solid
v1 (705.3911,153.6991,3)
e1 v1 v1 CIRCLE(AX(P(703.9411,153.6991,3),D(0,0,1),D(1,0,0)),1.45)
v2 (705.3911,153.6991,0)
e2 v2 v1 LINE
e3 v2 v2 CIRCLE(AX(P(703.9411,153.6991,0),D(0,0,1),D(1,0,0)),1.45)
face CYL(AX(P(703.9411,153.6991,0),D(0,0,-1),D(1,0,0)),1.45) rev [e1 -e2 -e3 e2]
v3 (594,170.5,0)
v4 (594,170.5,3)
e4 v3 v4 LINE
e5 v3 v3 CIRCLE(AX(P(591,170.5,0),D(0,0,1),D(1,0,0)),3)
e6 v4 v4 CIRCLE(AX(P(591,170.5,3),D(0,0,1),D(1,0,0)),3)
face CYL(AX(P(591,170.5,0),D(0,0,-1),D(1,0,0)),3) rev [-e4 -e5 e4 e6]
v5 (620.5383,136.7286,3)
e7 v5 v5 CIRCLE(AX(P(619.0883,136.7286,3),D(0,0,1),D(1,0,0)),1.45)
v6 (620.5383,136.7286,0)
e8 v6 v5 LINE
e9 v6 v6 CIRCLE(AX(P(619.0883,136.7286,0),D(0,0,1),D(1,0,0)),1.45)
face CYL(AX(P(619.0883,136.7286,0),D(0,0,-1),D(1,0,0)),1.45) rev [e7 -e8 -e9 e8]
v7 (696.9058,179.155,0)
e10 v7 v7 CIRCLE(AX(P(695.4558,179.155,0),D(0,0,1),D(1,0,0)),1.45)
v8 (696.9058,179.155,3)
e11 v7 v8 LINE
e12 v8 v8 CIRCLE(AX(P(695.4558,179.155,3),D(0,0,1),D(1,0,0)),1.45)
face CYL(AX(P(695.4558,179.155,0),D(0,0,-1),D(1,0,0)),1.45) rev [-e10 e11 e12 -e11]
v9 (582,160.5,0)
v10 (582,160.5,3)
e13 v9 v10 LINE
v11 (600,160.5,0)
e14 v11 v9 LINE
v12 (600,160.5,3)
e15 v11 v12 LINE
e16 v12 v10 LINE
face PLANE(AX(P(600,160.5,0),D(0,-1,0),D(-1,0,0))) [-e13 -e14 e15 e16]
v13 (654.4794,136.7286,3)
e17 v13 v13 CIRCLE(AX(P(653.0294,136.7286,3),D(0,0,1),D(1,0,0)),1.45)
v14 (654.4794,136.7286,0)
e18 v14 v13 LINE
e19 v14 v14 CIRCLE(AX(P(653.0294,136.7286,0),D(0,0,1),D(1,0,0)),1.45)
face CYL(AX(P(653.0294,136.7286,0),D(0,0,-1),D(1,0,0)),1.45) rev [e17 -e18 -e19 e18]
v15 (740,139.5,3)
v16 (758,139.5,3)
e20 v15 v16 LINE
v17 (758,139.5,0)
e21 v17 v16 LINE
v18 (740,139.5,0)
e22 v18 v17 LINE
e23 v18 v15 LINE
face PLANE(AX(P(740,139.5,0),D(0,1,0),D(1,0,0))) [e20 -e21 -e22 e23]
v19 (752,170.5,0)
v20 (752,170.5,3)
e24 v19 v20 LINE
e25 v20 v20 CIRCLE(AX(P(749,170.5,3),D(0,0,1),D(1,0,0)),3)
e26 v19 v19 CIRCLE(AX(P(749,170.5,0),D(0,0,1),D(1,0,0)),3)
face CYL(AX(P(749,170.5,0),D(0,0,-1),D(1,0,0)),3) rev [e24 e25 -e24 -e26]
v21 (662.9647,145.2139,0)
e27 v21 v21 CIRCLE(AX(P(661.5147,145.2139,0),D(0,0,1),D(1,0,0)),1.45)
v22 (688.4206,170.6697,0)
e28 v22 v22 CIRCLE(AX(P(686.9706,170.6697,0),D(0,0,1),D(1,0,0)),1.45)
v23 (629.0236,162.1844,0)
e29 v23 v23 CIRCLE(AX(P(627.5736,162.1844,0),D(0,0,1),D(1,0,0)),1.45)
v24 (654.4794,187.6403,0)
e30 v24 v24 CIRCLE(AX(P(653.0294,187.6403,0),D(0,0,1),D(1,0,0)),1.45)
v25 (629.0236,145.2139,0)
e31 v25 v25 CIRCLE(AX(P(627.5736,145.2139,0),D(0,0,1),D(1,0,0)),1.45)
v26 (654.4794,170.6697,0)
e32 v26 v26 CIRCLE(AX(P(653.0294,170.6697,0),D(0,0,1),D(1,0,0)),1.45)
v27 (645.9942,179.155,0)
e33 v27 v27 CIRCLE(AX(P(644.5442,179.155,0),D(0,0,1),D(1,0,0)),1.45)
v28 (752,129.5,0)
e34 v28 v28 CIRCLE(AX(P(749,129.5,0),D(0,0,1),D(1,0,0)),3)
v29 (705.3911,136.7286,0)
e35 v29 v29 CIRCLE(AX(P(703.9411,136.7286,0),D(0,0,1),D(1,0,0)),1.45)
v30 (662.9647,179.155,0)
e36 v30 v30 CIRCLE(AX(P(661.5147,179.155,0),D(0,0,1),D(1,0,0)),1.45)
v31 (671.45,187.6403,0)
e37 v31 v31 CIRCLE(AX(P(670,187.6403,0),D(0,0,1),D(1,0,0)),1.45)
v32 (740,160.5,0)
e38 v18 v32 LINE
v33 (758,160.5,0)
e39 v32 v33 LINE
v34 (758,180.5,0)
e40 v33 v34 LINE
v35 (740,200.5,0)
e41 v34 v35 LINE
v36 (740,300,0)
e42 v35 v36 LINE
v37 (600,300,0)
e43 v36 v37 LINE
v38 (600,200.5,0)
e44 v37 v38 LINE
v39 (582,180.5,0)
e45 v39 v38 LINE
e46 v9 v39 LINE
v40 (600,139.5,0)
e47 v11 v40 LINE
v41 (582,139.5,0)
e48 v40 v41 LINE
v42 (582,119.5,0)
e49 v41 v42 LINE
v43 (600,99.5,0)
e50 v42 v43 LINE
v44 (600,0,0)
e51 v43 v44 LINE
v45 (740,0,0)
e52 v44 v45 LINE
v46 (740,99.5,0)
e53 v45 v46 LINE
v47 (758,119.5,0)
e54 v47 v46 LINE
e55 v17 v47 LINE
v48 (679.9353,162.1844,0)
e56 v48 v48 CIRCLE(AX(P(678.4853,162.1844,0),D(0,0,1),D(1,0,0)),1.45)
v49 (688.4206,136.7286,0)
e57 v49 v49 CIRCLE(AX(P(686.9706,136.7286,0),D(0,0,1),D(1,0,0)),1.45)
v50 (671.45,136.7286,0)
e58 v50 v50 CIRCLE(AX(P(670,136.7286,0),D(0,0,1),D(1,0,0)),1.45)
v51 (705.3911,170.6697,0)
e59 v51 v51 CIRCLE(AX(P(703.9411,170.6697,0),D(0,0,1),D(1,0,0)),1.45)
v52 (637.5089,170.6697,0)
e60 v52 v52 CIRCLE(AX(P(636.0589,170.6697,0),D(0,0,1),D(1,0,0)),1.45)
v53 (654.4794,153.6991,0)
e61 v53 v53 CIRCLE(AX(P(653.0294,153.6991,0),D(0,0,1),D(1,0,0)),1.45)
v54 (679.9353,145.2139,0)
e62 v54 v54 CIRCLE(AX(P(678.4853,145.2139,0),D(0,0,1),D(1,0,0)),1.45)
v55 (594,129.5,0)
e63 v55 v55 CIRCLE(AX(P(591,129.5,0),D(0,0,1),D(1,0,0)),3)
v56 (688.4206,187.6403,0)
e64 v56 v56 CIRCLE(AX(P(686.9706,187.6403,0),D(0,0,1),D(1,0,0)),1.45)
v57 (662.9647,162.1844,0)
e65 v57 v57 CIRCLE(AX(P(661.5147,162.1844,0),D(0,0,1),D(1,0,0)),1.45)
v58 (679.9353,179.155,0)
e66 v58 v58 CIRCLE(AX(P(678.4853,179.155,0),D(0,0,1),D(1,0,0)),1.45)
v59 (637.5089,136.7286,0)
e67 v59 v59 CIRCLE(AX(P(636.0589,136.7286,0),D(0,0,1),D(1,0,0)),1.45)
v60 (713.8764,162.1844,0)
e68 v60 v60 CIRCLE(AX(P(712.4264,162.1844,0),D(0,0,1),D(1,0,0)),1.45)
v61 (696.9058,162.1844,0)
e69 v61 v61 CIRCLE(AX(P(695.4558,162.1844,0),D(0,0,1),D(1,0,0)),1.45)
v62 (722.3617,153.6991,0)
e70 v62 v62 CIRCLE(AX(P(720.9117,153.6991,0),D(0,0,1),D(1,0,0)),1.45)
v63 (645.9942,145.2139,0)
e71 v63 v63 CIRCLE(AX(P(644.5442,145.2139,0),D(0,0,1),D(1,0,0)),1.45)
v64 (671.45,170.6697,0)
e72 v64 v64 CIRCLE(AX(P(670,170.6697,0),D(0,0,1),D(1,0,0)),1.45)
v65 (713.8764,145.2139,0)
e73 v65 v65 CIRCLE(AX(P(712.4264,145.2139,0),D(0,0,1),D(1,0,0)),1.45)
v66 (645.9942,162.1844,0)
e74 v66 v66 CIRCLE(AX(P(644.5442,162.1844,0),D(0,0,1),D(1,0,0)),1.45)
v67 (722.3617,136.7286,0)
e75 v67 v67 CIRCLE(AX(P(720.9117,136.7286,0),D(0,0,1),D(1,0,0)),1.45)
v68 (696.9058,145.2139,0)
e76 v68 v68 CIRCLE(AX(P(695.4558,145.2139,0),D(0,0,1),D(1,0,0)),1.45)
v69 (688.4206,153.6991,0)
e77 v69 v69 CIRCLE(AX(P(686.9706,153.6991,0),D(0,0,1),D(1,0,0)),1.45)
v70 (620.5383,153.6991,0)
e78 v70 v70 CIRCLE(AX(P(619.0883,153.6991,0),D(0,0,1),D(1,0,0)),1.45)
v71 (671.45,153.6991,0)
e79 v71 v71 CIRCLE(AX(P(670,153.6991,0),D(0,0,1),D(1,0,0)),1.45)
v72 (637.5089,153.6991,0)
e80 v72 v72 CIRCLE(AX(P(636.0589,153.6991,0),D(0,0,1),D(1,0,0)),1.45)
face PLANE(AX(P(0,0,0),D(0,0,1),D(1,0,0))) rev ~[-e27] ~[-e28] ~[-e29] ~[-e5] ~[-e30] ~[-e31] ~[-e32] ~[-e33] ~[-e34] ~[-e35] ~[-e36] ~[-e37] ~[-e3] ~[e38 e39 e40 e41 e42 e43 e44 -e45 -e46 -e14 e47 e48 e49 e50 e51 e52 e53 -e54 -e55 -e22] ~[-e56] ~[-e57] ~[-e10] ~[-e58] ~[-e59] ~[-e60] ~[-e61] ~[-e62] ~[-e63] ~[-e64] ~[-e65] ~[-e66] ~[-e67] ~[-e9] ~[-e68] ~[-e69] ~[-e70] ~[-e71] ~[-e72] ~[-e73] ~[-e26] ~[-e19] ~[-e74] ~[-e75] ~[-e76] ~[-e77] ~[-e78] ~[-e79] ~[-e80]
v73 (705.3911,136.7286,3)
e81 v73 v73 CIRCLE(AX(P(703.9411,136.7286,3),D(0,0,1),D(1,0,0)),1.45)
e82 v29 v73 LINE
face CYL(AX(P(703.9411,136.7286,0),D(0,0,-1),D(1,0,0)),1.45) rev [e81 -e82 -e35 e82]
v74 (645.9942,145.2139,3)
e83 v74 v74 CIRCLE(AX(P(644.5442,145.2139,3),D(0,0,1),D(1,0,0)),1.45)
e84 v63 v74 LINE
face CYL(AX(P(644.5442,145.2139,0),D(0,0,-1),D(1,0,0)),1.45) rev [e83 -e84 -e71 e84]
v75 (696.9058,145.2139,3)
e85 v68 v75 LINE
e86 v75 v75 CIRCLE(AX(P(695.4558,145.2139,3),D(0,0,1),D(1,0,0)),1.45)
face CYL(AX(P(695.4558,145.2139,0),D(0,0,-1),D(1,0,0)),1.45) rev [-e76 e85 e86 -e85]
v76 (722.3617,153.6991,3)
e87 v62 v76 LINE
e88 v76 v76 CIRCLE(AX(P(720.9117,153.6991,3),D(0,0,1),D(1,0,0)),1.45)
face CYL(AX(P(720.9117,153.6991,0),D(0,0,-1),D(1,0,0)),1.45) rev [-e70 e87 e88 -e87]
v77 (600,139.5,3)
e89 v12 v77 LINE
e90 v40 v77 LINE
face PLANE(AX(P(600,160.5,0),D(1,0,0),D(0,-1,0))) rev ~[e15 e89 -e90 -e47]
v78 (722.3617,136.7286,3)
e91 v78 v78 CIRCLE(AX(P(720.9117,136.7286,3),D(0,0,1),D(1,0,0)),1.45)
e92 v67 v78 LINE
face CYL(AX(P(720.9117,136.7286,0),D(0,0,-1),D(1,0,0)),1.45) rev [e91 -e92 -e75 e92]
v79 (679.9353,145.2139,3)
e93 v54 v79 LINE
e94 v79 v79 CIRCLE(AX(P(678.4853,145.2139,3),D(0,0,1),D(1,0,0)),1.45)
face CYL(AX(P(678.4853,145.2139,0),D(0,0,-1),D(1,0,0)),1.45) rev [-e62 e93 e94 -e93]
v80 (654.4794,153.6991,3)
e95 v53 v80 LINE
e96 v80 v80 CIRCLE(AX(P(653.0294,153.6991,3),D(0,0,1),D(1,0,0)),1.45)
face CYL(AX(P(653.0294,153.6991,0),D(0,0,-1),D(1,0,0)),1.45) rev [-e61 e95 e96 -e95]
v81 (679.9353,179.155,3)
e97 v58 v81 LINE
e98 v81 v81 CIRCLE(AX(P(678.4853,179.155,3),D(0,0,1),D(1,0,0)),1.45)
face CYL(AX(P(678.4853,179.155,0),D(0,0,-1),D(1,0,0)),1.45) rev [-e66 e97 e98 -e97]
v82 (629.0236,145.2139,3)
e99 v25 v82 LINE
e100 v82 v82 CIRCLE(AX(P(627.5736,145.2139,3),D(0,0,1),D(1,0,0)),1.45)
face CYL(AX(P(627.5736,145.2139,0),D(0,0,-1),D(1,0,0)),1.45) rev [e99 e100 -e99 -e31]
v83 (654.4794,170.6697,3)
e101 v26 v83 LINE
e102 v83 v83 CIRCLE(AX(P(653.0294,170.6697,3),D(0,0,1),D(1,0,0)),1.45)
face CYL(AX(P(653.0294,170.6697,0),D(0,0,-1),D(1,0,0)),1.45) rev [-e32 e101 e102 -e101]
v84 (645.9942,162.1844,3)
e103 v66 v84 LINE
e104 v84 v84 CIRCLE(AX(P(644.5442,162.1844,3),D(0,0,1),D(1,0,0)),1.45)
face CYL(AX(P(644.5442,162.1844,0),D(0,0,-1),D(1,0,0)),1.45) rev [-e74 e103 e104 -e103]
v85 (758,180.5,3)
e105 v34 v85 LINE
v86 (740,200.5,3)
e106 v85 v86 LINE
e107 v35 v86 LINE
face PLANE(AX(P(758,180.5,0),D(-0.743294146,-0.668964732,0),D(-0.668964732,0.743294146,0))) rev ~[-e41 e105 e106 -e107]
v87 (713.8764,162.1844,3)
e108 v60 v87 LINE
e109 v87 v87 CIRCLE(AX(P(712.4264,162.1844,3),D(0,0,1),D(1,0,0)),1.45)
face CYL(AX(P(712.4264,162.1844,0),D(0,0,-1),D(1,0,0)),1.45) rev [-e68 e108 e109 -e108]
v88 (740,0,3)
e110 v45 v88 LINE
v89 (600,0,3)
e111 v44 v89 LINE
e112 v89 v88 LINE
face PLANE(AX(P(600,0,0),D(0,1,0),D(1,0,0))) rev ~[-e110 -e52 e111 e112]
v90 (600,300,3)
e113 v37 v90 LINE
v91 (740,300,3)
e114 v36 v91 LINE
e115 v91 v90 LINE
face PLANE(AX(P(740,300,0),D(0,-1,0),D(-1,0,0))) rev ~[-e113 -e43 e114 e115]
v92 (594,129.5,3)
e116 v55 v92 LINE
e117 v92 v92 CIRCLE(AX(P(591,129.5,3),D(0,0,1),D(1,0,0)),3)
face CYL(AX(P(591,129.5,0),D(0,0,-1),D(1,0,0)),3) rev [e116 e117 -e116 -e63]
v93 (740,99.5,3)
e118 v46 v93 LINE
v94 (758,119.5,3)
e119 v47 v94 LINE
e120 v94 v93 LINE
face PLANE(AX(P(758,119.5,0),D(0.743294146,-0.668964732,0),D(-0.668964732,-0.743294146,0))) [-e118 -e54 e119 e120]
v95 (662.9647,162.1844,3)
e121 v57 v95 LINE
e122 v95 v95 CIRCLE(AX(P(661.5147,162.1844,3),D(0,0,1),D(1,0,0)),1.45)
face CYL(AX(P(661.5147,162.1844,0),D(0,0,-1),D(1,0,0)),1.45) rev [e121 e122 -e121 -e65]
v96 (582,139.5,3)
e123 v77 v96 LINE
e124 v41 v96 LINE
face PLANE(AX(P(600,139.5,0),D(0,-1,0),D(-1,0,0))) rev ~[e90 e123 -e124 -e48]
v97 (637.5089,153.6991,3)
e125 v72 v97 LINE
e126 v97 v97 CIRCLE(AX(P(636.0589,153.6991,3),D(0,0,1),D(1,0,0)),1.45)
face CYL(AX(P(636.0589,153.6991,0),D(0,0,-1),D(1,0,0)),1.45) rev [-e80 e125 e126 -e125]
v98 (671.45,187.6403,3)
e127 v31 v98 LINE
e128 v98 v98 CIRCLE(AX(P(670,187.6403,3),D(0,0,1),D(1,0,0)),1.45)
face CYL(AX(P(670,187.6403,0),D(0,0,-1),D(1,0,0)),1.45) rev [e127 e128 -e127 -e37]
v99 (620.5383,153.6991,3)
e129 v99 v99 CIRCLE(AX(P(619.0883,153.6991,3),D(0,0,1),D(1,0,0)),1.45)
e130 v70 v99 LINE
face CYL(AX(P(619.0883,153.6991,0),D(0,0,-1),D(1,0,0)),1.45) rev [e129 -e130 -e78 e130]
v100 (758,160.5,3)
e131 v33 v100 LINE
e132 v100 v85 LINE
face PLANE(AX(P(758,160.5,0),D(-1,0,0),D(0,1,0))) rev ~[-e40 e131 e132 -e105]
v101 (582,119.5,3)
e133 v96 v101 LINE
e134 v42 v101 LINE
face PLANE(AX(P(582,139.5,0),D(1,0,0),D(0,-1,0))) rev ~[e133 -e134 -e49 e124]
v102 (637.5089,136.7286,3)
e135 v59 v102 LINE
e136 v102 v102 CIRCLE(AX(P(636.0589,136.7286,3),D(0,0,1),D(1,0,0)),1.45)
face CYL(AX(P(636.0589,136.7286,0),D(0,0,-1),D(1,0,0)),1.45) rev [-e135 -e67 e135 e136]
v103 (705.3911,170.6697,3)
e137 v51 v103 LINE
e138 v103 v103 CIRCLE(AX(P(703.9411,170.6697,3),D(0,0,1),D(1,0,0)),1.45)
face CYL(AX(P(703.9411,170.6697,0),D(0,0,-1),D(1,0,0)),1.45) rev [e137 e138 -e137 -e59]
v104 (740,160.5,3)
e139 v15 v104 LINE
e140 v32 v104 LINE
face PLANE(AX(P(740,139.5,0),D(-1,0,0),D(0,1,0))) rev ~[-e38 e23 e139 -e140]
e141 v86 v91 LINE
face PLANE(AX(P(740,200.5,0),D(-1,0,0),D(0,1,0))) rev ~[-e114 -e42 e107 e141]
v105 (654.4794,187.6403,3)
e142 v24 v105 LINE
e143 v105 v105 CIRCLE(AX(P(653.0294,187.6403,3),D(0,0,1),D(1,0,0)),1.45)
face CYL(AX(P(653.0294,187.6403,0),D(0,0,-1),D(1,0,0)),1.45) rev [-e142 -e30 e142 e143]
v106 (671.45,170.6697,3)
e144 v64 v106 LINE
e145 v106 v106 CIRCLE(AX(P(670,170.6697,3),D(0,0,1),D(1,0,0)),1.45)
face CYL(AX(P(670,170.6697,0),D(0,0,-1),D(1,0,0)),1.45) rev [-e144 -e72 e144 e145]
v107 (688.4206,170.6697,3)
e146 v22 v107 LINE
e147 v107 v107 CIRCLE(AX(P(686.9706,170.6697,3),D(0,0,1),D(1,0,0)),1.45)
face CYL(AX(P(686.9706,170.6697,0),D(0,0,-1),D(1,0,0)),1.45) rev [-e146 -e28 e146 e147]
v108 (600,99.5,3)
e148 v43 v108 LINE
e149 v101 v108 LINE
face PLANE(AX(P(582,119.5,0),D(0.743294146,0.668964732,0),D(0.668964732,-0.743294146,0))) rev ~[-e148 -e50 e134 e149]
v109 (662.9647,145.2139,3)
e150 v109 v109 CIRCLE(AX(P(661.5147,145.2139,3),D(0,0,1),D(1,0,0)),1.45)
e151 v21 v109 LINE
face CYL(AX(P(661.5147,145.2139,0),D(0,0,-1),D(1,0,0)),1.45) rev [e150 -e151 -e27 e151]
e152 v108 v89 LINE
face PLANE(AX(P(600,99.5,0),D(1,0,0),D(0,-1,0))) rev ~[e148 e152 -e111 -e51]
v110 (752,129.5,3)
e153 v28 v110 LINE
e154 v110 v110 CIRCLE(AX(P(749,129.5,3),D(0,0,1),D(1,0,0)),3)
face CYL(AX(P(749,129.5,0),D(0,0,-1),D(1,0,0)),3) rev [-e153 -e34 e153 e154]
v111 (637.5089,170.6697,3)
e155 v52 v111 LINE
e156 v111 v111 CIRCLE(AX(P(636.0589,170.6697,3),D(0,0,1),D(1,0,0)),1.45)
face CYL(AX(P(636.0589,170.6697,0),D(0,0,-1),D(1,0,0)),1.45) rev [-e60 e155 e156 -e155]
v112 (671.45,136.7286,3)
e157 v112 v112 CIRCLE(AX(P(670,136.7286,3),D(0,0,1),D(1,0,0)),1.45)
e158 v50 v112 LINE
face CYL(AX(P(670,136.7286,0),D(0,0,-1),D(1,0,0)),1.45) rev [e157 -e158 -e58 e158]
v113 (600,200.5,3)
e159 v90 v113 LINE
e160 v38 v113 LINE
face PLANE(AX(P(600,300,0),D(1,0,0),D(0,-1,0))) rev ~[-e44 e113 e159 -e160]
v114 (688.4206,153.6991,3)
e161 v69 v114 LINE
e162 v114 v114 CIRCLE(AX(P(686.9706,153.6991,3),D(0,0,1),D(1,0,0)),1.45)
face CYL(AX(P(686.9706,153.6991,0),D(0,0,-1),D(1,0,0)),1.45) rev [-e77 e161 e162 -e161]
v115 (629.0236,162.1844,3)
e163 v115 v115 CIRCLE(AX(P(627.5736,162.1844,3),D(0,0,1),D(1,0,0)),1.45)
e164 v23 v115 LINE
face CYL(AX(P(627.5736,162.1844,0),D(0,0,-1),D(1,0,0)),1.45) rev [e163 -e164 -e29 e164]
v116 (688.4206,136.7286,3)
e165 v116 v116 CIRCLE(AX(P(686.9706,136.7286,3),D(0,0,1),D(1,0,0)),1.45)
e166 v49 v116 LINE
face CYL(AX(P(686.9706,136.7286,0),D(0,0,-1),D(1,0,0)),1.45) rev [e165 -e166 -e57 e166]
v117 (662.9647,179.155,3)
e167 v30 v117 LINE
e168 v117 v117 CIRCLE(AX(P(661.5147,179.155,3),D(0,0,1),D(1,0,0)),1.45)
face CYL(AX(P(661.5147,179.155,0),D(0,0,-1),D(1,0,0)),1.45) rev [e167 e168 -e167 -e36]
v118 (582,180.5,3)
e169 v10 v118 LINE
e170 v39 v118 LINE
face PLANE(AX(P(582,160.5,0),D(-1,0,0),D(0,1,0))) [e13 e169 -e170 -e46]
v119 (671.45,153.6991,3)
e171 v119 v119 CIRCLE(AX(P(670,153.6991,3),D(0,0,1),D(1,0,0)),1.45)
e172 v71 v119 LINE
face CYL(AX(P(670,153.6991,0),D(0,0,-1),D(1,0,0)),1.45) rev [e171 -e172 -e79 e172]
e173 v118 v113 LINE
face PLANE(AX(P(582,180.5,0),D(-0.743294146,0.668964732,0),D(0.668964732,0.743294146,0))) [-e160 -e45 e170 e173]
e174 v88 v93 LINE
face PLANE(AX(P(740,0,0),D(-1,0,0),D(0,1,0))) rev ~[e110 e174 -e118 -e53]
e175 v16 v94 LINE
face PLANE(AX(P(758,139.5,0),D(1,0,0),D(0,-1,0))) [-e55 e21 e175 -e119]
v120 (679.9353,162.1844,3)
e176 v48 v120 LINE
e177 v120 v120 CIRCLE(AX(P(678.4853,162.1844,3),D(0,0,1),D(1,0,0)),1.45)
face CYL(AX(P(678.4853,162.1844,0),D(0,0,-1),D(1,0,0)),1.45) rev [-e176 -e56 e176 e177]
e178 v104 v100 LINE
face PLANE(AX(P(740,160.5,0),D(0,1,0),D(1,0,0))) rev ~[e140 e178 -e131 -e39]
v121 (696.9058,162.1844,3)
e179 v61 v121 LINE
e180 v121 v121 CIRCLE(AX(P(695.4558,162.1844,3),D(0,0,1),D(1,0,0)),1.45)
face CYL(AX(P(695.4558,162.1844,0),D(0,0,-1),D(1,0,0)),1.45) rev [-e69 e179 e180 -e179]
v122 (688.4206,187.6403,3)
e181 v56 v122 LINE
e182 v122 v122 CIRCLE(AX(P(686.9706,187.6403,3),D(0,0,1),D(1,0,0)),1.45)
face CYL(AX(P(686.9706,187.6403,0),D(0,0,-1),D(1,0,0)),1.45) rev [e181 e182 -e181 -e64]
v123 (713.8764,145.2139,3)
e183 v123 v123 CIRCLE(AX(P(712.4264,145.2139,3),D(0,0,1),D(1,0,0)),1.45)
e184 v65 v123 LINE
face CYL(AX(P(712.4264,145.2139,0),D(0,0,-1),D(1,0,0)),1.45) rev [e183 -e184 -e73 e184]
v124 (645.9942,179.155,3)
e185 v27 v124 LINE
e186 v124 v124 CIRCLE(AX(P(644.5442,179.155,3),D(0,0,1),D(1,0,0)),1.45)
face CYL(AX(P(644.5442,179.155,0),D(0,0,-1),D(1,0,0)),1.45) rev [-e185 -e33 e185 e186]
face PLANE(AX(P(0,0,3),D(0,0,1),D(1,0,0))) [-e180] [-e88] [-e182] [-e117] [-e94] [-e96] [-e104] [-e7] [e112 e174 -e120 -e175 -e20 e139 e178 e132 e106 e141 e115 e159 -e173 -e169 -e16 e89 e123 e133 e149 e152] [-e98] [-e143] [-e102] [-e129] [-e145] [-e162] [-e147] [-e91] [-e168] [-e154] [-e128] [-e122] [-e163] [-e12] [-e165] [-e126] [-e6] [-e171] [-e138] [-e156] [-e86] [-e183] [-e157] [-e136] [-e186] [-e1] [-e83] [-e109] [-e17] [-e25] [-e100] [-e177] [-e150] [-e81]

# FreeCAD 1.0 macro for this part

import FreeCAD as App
import Part
import Sketcher
from FreeCAD import Vector


def add_polygon(sketch, points):
    """Adds a closed chain of lines whose ends are joined by coincident constraints."""
    first, n = sketch.GeometryCount, len(points)
    for a, b in zip(points, points[1:] + points[:1]):
        sketch.addGeometry(Part.LineSegment(App.Vector(*a, 0), App.Vector(*b, 0)), False)
    for i in range(n):
        sketch.addConstraint(Sketcher.Constraint("Coincident", first + i, 2, first + (i + 1) % n, 1))

doc = App.newDocument("Part")
body = doc.addObject("PartDesign::Body", "Body")

# Sketch on XY plane
sketch1 = body.newObject("Sketcher::SketchObject", "Sketch")
sketch1.AttachmentSupport = (doc.getObject("XY_Plane"), [""])
sketch1.MapMode = "FlatFace"
add_polygon(sketch1, [(740, 200.5), (740, 300), (600, 300), (600, 200.5), (582, 180.5), (582, 160.5), (600, 160.5), (600, 139.5), (582, 139.5), (582, 119.5), (600, 99.5), (600, 0), (740, 0), (740, 99.5), (758, 119.5), (758, 139.5), (740, 139.5), (740, 160.5), (758, 160.5), (758, 180.5)])  # lines 0-19
sketch1.addGeometry(Part.Circle(Vector(619.1, 136.7, 0), Vector(0, 0, 1), 1.4), False)  # 20
sketch1.addGeometry(Part.Circle(Vector(627.6, 145.2, 0), Vector(0, 0, 1), 1.4), False)  # 21
sketch1.addGeometry(Part.Circle(Vector(636.1, 136.7, 0), Vector(0, 0, 1), 1.4), False)  # 22
sketch1.addGeometry(Part.Circle(Vector(653, 136.7, 0), Vector(0, 0, 1), 1.4), False)  # 23
sketch1.addGeometry(Part.Circle(Vector(644.5, 145.2, 0), Vector(0, 0, 1), 1.4), False)  # 24
sketch1.addGeometry(Part.Circle(Vector(661.5, 145.2, 0), Vector(0, 0, 1), 1.4), False)  # 25
sketch1.addGeometry(Part.Circle(Vector(670, 136.7, 0), Vector(0, 0, 1), 1.4), False)  # 26
sketch1.addGeometry(Part.Circle(Vector(687, 136.7, 0), Vector(0, 0, 1), 1.4), False)  # 27
sketch1.addGeometry(Part.Circle(Vector(678.5, 145.2, 0), Vector(0, 0, 1), 1.4), False)  # 28
sketch1.addGeometry(Part.Circle(Vector(695.5, 145.2, 0), Vector(0, 0, 1), 1.4), False)  # 29
sketch1.addGeometry(Part.Circle(Vector(703.9, 136.7, 0), Vector(0, 0, 1), 1.4), False)  # 30
sketch1.addGeometry(Part.Circle(Vector(720.9, 136.7, 0), Vector(0, 0, 1), 1.4), False)  # 31
sketch1.addGeometry(Part.Circle(Vector(712.4, 145.2, 0), Vector(0, 0, 1), 1.4), False)  # 32
sketch1.addGeometry(Part.Circle(Vector(619.1, 153.7, 0), Vector(0, 0, 1), 1.4), False)  # 33
sketch1.addGeometry(Part.Circle(Vector(636.1, 153.7, 0), Vector(0, 0, 1), 1.4), False)  # 34
sketch1.addGeometry(Part.Circle(Vector(653, 153.7, 0), Vector(0, 0, 1), 1.4), False)  # 35
sketch1.addGeometry(Part.Circle(Vector(627.6, 162.2, 0), Vector(0, 0, 1), 1.4), False)  # 36
sketch1.addGeometry(Part.Circle(Vector(644.5, 162.2, 0), Vector(0, 0, 1), 1.4), False)  # 37
sketch1.addGeometry(Part.Circle(Vector(661.5, 162.2, 0), Vector(0, 0, 1), 1.4), False)  # 38
sketch1.addGeometry(Part.Circle(Vector(636.1, 170.7, 0), Vector(0, 0, 1), 1.4), False)  # 39
sketch1.addGeometry(Part.Circle(Vector(653, 170.7, 0), Vector(0, 0, 1), 1.4), False)  # 40
sketch1.addGeometry(Part.Circle(Vector(670, 153.7, 0), Vector(0, 0, 1), 1.4), False)  # 41
sketch1.addGeometry(Part.Circle(Vector(687, 153.7, 0), Vector(0, 0, 1), 1.4), False)  # 42
sketch1.addGeometry(Part.Circle(Vector(703.9, 153.7, 0), Vector(0, 0, 1), 1.4), False)  # 43
sketch1.addGeometry(Part.Circle(Vector(720.9, 153.7, 0), Vector(0, 0, 1), 1.4), False)  # 44
sketch1.addGeometry(Part.Circle(Vector(678.5, 162.2, 0), Vector(0, 0, 1), 1.4), False)  # 45
sketch1.addGeometry(Part.Circle(Vector(695.5, 162.2, 0), Vector(0, 0, 1), 1.4), False)  # 46
sketch1.addGeometry(Part.Circle(Vector(670, 170.7, 0), Vector(0, 0, 1), 1.4), False)  # 47
sketch1.addGeometry(Part.Circle(Vector(687, 170.7, 0), Vector(0, 0, 1), 1.4), False)  # 48
sketch1.addGeometry(Part.Circle(Vector(712.4, 162.2, 0), Vector(0, 0, 1), 1.4), False)  # 49
sketch1.addGeometry(Part.Circle(Vector(703.9, 170.7, 0), Vector(0, 0, 1), 1.4), False)  # 50
sketch1.addGeometry(Part.Circle(Vector(644.5, 179.2, 0), Vector(0, 0, 1), 1.4), False)  # 51
sketch1.addGeometry(Part.Circle(Vector(661.5, 179.2, 0), Vector(0, 0, 1), 1.4), False)  # 52
sketch1.addGeometry(Part.Circle(Vector(653, 187.6, 0), Vector(0, 0, 1), 1.4), False)  # 53
sketch1.addGeometry(Part.Circle(Vector(678.5, 179.2, 0), Vector(0, 0, 1), 1.4), False)  # 54
sketch1.addGeometry(Part.Circle(Vector(695.5, 179.2, 0), Vector(0, 0, 1), 1.4), False)  # 55
sketch1.addGeometry(Part.Circle(Vector(670, 187.6, 0), Vector(0, 0, 1), 1.4), False)  # 56
sketch1.addGeometry(Part.Circle(Vector(687, 187.6, 0), Vector(0, 0, 1), 1.4), False)  # 57
sketch1.addGeometry(Part.Circle(Vector(749, 170.5, 0), Vector(0, 0, 1), 3), False)  # 58
sketch1.addGeometry(Part.Circle(Vector(749, 129.5, 0), Vector(0, 0, 1), 3), False)  # 59
sketch1.addGeometry(Part.Circle(Vector(591, 129.5, 0), Vector(0, 0, 1), 3), False)  # 60
sketch1.addGeometry(Part.Circle(Vector(591, 170.5, 0), Vector(0, 0, 1), 3), False)  # 61
sketch1.addConstraint(Sketcher.Constraint("Vertical", 0))
sketch1.addConstraint(Sketcher.Constraint("Horizontal", 1))
sketch1.addConstraint(Sketcher.Constraint("Vertical", 2))
sketch1.addConstraint(Sketcher.Constraint("Vertical", 4))
sketch1.addConstraint(Sketcher.Constraint("Horizontal", 5))
sketch1.addConstraint(Sketcher.Constraint("Vertical", 6))
sketch1.addConstraint(Sketcher.Constraint("Horizontal", 7))
sketch1.addConstraint(Sketcher.Constraint("Vertical", 8))
sketch1.addConstraint(Sketcher.Constraint("Vertical", 10))
sketch1.addConstraint(Sketcher.Constraint("Horizontal", 11))
sketch1.addConstraint(Sketcher.Constraint("Vertical", 12))
sketch1.addConstraint(Sketcher.Constraint("Vertical", 14))
sketch1.addConstraint(Sketcher.Constraint("Horizontal", 15))
sketch1.addConstraint(Sketcher.Constraint("Vertical", 16))
sketch1.addConstraint(Sketcher.Constraint("Horizontal", 17))
sketch1.addConstraint(Sketcher.Constraint("Vertical", 18))
sketch1.addConstraint(Sketcher.Constraint("Equal", 20, 21))
sketch1.addConstraint(Sketcher.Constraint("Equal", 21, 22))
sketch1.addConstraint(Sketcher.Constraint("Equal", 22, 23))
sketch1.addConstraint(Sketcher.Constraint("Equal", 23, 24))
sketch1.addConstraint(Sketcher.Constraint("Equal", 24, 25))
sketch1.addConstraint(Sketcher.Constraint("Equal", 25, 26))
sketch1.addConstraint(Sketcher.Constraint("Equal", 26, 27))
sketch1.addConstraint(Sketcher.Constraint("Equal", 27, 28))
sketch1.addConstraint(Sketcher.Constraint("Equal", 28, 29))
sketch1.addConstraint(Sketcher.Constraint("Equal", 29, 30))
sketch1.addConstraint(Sketcher.Constraint("Equal", 30, 31))
sketch1.addConstraint(Sketcher.Constraint("Equal", 31, 32))
sketch1.addConstraint(Sketcher.Constraint("Equal", 32, 33))
sketch1.addConstraint(Sketcher.Constraint("Equal", 33, 34))
sketch1.addConstraint(Sketcher.Constraint("Equal", 34, 35))
sketch1.addConstraint(Sketcher.Constraint("Equal", 35, 36))
sketch1.addConstraint(Sketcher.Constraint("Equal", 36, 37))
sketch1.addConstraint(Sketcher.Constraint("Equal", 37, 38))
sketch1.addConstraint(Sketcher.Constraint("Equal", 38, 39))
sketch1.addConstraint(Sketcher.Constraint("Equal", 39, 40))
sketch1.addConstraint(Sketcher.Constraint("Equal", 40, 41))
sketch1.addConstraint(Sketcher.Constraint("Equal", 41, 42))
sketch1.addConstraint(Sketcher.Constraint("Equal", 42, 43))
sketch1.addConstraint(Sketcher.Constraint("Equal", 43, 44))
sketch1.addConstraint(Sketcher.Constraint("Equal", 44, 45))
sketch1.addConstraint(Sketcher.Constraint("Equal", 45, 46))
sketch1.addConstraint(Sketcher.Constraint("Equal", 46, 47))
sketch1.addConstraint(Sketcher.Constraint("Equal", 47, 48))
sketch1.addConstraint(Sketcher.Constraint("Equal", 48, 49))
sketch1.addConstraint(Sketcher.Constraint("Equal", 49, 50))
sketch1.addConstraint(Sketcher.Constraint("Equal", 50, 51))
sketch1.addConstraint(Sketcher.Constraint("Equal", 51, 52))
sketch1.addConstraint(Sketcher.Constraint("Equal", 52, 53))
sketch1.addConstraint(Sketcher.Constraint("Equal", 53, 54))
sketch1.addConstraint(Sketcher.Constraint("Equal", 54, 55))
sketch1.addConstraint(Sketcher.Constraint("Equal", 55, 56))
sketch1.addConstraint(Sketcher.Constraint("Equal", 56, 57))
sketch1.addConstraint(Sketcher.Constraint("Equal", 58, 59))
sketch1.addConstraint(Sketcher.Constraint("Equal", 59, 60))
sketch1.addConstraint(Sketcher.Constraint("Equal", 60, 61))
sketch1.addConstraint(Sketcher.Constraint("PointOnObject", 10, 2, -1))
sketch1.addConstraint(Sketcher.Constraint("Parallel", 3, 13))
sketch1.addConstraint(Sketcher.Constraint("Parallel", 9, 19))
sketch1.addConstraint(Sketcher.Constraint("Horizontal", 20, 3, 22, 3))
sketch1.addConstraint(Sketcher.Constraint("Horizontal", 22, 3, 23, 3))
sketch1.addConstraint(Sketcher.Constraint("Horizontal", 21, 3, 24, 3))
sketch1.addConstraint(Sketcher.Constraint("Horizontal", 24, 3, 25, 3))
sketch1.addConstraint(Sketcher.Constraint("Horizontal", 23, 3, 26, 3))
sketch1.addConstraint(Sketcher.Constraint("Horizontal", 26, 3, 27, 3))
sketch1.addConstraint(Sketcher.Constraint("Horizontal", 25, 3, 28, 3))
sketch1.addConstraint(Sketcher.Constraint("Horizontal", 28, 3, 29, 3))
sketch1.addConstraint(Sketcher.Constraint("Horizontal", 27, 3, 30, 3))
sketch1.addConstraint(Sketcher.Constraint("Horizontal", 30, 3, 31, 3))
sketch1.addConstraint(Sketcher.Constraint("Horizontal", 29, 3, 32, 3))
sketch1.addConstraint(Sketcher.Constraint("Horizontal", 33, 3, 34, 3))
sketch1.addConstraint(Sketcher.Constraint("Horizontal", 34, 3, 35, 3))
sketch1.addConstraint(Sketcher.Constraint("Horizontal", 36, 3, 37, 3))
sketch1.addConstraint(Sketcher.Constraint("Horizontal", 37, 3, 38, 3))
sketch1.addConstraint(Sketcher.Constraint("Horizontal", 39, 3, 40, 3))
sketch1.addConstraint(Sketcher.Constraint("Horizontal", 35, 3, 41, 3))
sketch1.addConstraint(Sketcher.Constraint("Horizontal", 41, 3, 42, 3))
sketch1.addConstraint(Sketcher.Constraint("Horizontal", 42, 3, 43, 3))
sketch1.addConstraint(Sketcher.Constraint("Horizontal", 43, 3, 44, 3))
sketch1.addConstraint(Sketcher.Constraint("Horizontal", 38, 3, 45, 3))
sketch1.addConstraint(Sketcher.Constraint("Horizontal", 45, 3, 46, 3))
sketch1.addConstraint(Sketcher.Constraint("Horizontal", 40, 3, 47, 3))
sketch1.addConstraint(Sketcher.Constraint("Horizontal", 47, 3, 48, 3))
sketch1.addConstraint(Sketcher.Constraint("Horizontal", 46, 3, 49, 3))
sketch1.addConstraint(Sketcher.Constraint("Horizontal", 48, 3, 50, 3))
sketch1.addConstraint(Sketcher.Constraint("Horizontal", 51, 3, 52, 3))
sketch1.addConstraint(Sketcher.Constraint("Horizontal", 52, 3, 54, 3))
sketch1.addConstraint(Sketcher.Constraint("Horizontal", 54, 3, 55, 3))
sketch1.addConstraint(Sketcher.Constraint("Horizontal", 53, 3, 56, 3))
sketch1.addConstraint(Sketcher.Constraint("Horizontal", 56, 3, 57, 3))
sketch1.addConstraint(Sketcher.Constraint("Horizontal", 59, 3, 60, 3))
sketch1.addConstraint(Sketcher.Constraint("Horizontal", 58, 3, 61, 3))
sketch1.addConstraint(Sketcher.Constraint("Horizontal", 9, 2, 12, 2))
sketch1.addConstraint(Sketcher.Constraint("Horizontal", 8, 2, 13, 2))
sketch1.addConstraint(Sketcher.Constraint("Horizontal", 7, 2, 14, 2))
sketch1.addConstraint(Sketcher.Constraint("Horizontal", 5, 2, 16, 2))
sketch1.addConstraint(Sketcher.Constraint("Horizontal", 3, 2, 18, 2))
sketch1.addConstraint(Sketcher.Constraint("Horizontal", 2, 2, 19, 2))
sketch1.addConstraint(Sketcher.Constraint("Vertical", 20, 3, 33, 3))
sketch1.addConstraint(Sketcher.Constraint("Vertical", 22, 3, 34, 3))
sketch1.addConstraint(Sketcher.Constraint("Vertical", 23, 3, 35, 3))
sketch1.addConstraint(Sketcher.Constraint("Vertical", 21, 3, 36, 3))
sketch1.addConstraint(Sketcher.Constraint("Vertical", 24, 3, 37, 3))
sketch1.addConstraint(Sketcher.Constraint("Vertical", 25, 3, 38, 3))
sketch1.addConstraint(Sketcher.Constraint("Vertical", 34, 3, 39, 3))
sketch1.addConstraint(Sketcher.Constraint("Vertical", 35, 3, 40, 3))
sketch1.addConstraint(Sketcher.Constraint("Vertical", 26, 3, 41, 3))
sketch1.addConstraint(Sketcher.Constraint("Vertical", 27, 3, 42, 3))
sketch1.addConstraint(Sketcher.Constraint("Vertical", 30, 3, 43, 3))
sketch1.addConstraint(Sketcher.Constraint("Vertical", 31, 3, 44, 3))
sketch1.addConstraint(Sketcher.Constraint("Vertical", 28, 3, 45, 3))
sketch1.addConstraint(Sketcher.Constraint("Vertical", 29, 3, 46, 3))
sketch1.addConstraint(Sketcher.Constraint("Vertical", 41, 3, 47, 3))
sketch1.addConstraint(Sketcher.Constraint("Vertical", 42, 3, 48, 3))
sketch1.addConstraint(Sketcher.Constraint("Vertical", 32, 3, 49, 3))
sketch1.addConstraint(Sketcher.Constraint("Vertical", 43, 3, 50, 3))
sketch1.addConstraint(Sketcher.Constraint("Vertical", 37, 3, 51, 3))
sketch1.addConstraint(Sketcher.Constraint("Vertical", 38, 3, 52, 3))
sketch1.addConstraint(Sketcher.Constraint("Vertical", 40, 3, 53, 3))
sketch1.addConstraint(Sketcher.Constraint("Vertical", 45, 3, 54, 3))
sketch1.addConstraint(Sketcher.Constraint("Vertical", 46, 3, 55, 3))
sketch1.addConstraint(Sketcher.Constraint("Vertical", 47, 3, 56, 3))
sketch1.addConstraint(Sketcher.Constraint("Vertical", 48, 3, 57, 3))
sketch1.addConstraint(Sketcher.Constraint("Vertical", 58, 3, 59, 3))
sketch1.addConstraint(Sketcher.Constraint("Vertical", 60, 3, 61, 3))
sketch1.addConstraint(Sketcher.Constraint("Vertical", 2, 2, 5, 2))
sketch1.addConstraint(Sketcher.Constraint("Vertical", 4, 2, 7, 2))
sketch1.addConstraint(Sketcher.Constraint("Vertical", 6, 2, 9, 2))
sketch1.addConstraint(Sketcher.Constraint("Vertical", 0, 2, 11, 2))
sketch1.addConstraint(Sketcher.Constraint("Vertical", 12, 2, 15, 2))
sketch1.addConstraint(Sketcher.Constraint("Vertical", 14, 2, 17, 2))
sketch1.addConstraint(Sketcher.Constraint("Equal", 4, 8))
sketch1.addConstraint(Sketcher.Constraint("Equal", 2, 10))
sketch1.addConstraint(Sketcher.Constraint("Diameter", 58, 6.0))
sketch1.addConstraint(Sketcher.Constraint("Diameter", 20, 2.9))
sketch1.addConstraint(Sketcher.Constraint("DistanceX", 1, 2, 1, 1, 140.0))
sketch1.addConstraint(Sketcher.Constraint("DistanceX", 5, 1, 5, 2, 18.0))
sketch1.addConstraint(Sketcher.Constraint("DistanceY", 4, 2, 4, 1, 20.0))
sketch1.addConstraint(Sketcher.Constraint("DistanceY", -1, 1, 0, 2, 300.0))
sketch1.addConstraint(Sketcher.Constraint("DistanceX", -1, 1, 1, 2, 600.0))
sketch1.addConstraint(Sketcher.Constraint("DistanceY", 6, 2, 6, 1, 21.0))
sketch1.addConstraint(Sketcher.Constraint("DistanceY", 0, 1, 0, 2, 99.5))
sketch1.addConstraint(Sketcher.Constraint("DistanceX", -1, 1, 26, 3, 670.0))
sketch1.addConstraint(Sketcher.Constraint("DistanceX", -1, 1, 58, 3, 749.0))
sketch1.addConstraint(Sketcher.Constraint("DistanceX", -1, 1, 60, 3, 591.0))
sketch1.addConstraint(Sketcher.Constraint("DistanceY", -1, 1, 58, 3, 170.5))
sketch1.addConstraint(Sketcher.Constraint("DistanceY", -1, 1, 59, 3, 129.5))
sketch1.addConstraint(Sketcher.Constraint("DistanceY", -1, 1, 21, 3, 145.214))
sketch1.addConstraint(Sketcher.Constraint("DistanceX", -1, 1, 22, 3, 636.059))
sketch1.addConstraint(Sketcher.Constraint("DistanceX", -1, 1, 30, 3, 703.941))
sketch1.addConstraint(Sketcher.Constraint("DistanceY", -1, 1, 33, 3, 153.699))
sketch1.addConstraint(Sketcher.Constraint("DistanceY", -1, 1, 51, 3, 179.155))
sketch1.addConstraint(Sketcher.Constraint("DistanceX", -1, 1, 20, 3, 619.0883))
sketch1.addConstraint(Sketcher.Constraint("DistanceY", -1, 1, 20, 3, 136.7286))
sketch1.addConstraint(Sketcher.Constraint("DistanceX", -1, 1, 21, 3, 627.5736))
sketch1.addConstraint(Sketcher.Constraint("DistanceX", -1, 1, 23, 3, 653.0294))
sketch1.addConstraint(Sketcher.Constraint("DistanceX", -1, 1, 24, 3, 644.5442))
sketch1.addConstraint(Sketcher.Constraint("DistanceX", -1, 1, 25, 3, 661.5147))
sketch1.addConstraint(Sketcher.Constraint("DistanceX", -1, 1, 27, 3, 686.9706))
sketch1.addConstraint(Sketcher.Constraint("DistanceX", -1, 1, 28, 3, 678.4853))
sketch1.addConstraint(Sketcher.Constraint("DistanceX", -1, 1, 29, 3, 695.4558))
sketch1.addConstraint(Sketcher.Constraint("DistanceX", -1, 1, 31, 3, 720.9117))
sketch1.addConstraint(Sketcher.Constraint("DistanceX", -1, 1, 32, 3, 712.4264))
sketch1.addConstraint(Sketcher.Constraint("DistanceY", -1, 1, 36, 3, 162.1844))
sketch1.addConstraint(Sketcher.Constraint("DistanceY", -1, 1, 39, 3, 170.6697))
sketch1.addConstraint(Sketcher.Constraint("DistanceY", -1, 1, 53, 3, 187.6403))
pad1 = body.newObject("PartDesign::Pad", "Pad")
pad1.Profile = sketch1
pad1.Length = 3

doc.recompute()
